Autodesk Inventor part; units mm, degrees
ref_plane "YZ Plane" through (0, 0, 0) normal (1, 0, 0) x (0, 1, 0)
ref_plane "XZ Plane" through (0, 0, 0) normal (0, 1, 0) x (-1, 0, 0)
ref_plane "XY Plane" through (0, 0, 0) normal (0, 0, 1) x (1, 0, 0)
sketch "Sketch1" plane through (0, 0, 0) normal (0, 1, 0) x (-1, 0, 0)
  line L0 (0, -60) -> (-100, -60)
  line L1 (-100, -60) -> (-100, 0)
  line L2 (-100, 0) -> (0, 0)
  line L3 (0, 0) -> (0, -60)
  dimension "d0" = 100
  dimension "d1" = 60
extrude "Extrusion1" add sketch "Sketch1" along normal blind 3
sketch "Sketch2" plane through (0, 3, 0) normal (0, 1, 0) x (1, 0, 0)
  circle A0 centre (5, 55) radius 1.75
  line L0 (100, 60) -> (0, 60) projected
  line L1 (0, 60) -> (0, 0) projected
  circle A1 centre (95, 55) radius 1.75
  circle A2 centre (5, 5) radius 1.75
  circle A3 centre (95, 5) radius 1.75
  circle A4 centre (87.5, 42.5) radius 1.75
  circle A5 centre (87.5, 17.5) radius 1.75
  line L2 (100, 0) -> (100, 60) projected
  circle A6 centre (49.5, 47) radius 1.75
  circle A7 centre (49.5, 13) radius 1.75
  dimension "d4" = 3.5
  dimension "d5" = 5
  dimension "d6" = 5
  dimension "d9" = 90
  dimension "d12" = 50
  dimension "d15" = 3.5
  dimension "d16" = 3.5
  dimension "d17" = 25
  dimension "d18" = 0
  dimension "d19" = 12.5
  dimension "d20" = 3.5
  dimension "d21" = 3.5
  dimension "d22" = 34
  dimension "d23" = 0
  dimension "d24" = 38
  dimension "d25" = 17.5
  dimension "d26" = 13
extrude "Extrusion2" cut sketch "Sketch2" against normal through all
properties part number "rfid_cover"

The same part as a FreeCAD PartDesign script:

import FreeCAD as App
import Part
import Sketcher

V = App.Vector

doc = App.newDocument("Part")
body = doc.addObject("PartDesign::Body", "Body")

# Sketch on XZ plane
sketch1 = body.newObject("Sketcher::SketchObject", "Sketch")
sketch1.AttachmentSupport = (doc.getObject("XZ_Plane"), [""])
sketch1.MapMode = "FlatFace"
sketch1.addGeometry(Part.LineSegment(V(100, -60, 0), V(0, -60, 0)), False)
sketch1.addGeometry(Part.LineSegment(V(0, -60, 0), V(0, 0, 0)), False)
sketch1.addGeometry(Part.LineSegment(V(0, 0, 0), V(100, 0, 0)), False)
sketch1.addGeometry(Part.LineSegment(V(100, 0, 0), V(100, -60, 0)), False)
sketch1.addConstraint(Sketcher.Constraint("Coincident", 0, 2, 1, 1))
sketch1.addConstraint(Sketcher.Constraint("Coincident", 1, 2, 2, 1))
sketch1.addConstraint(Sketcher.Constraint("Coincident", 2, 2, 3, 1))
sketch1.addConstraint(Sketcher.Constraint("Coincident", 3, 2, 0, 1))
sketch1.addConstraint(Sketcher.Constraint("Horizontal", 0))
sketch1.addConstraint(Sketcher.Constraint("Vertical", 1))
sketch1.addConstraint(Sketcher.Constraint("Horizontal", 2))
sketch1.addConstraint(Sketcher.Constraint("Vertical", 3))
sketch1.addConstraint(Sketcher.Constraint("Coincident", 1, 2, -1, 1))
sketch1.addConstraint(Sketcher.Constraint("DistanceX", 0, 2, 0, 1, 100.0))
sketch1.addConstraint(Sketcher.Constraint("DistanceY", 1, 1, 1, 2, 60.0))
pad1 = body.newObject("PartDesign::Pad", "Pad")
pad1.Profile = sketch1
pad1.Length = 3
pad1.Reversed = True

# Sketch on XZ plane
sketch2 = body.newObject("Sketcher::SketchObject", "Sketch001")
sketch2.AttachmentSupport = (doc.getObject("XZ_Plane"), [""])
sketch2.MapMode = "FlatFace"
sketch2.AttachmentOffset = App.Placement(V(0, 0, -3), App.Rotation())
sketch2.addGeometry(Part.Circle(V(5, -55, 0), V(0, 0, 1), 1.75), False)
sketch2.addGeometry(Part.Circle(V(95, -55, 0), V(0, 0, 1), 1.75), False)
sketch2.addGeometry(Part.Circle(V(5, -5, 0), V(0, 0, 1), 1.75), False)
sketch2.addGeometry(Part.Circle(V(95, -5, 0), V(0, 0, 1), 1.75), False)
sketch2.addGeometry(Part.Circle(V(87.5, -42.5, 0), V(0, 0, 1), 1.75), False)
sketch2.addGeometry(Part.Circle(V(87.5, -17.5, 0), V(0, 0, 1), 1.75), False)
sketch2.addGeometry(Part.Circle(V(49.5, -47, 0), V(0, 0, 1), 1.75), False)
sketch2.addGeometry(Part.Circle(V(49.5, -13, 0), V(0, 0, 1), 1.75), False)
sketch2.addConstraint(Sketcher.Constraint("Equal", 0, 1))
sketch2.addConstraint(Sketcher.Constraint("Equal", 1, 2))
sketch2.addConstraint(Sketcher.Constraint("Equal", 2, 3))
sketch2.addConstraint(Sketcher.Constraint("Equal", 3, 4))
sketch2.addConstraint(Sketcher.Constraint("Equal", 4, 5))
sketch2.addConstraint(Sketcher.Constraint("Equal", 5, 6))
sketch2.addConstraint(Sketcher.Constraint("Equal", 6, 7))
sketch2.addConstraint(Sketcher.Constraint("Horizontal", 0, 3, 1, 3))
sketch2.addConstraint(Sketcher.Constraint("Horizontal", 2, 3, 3, 3))
sketch2.addConstraint(Sketcher.Constraint("Vertical", 0, 3, 2, 3))
sketch2.addConstraint(Sketcher.Constraint("Vertical", 1, 3, 3, 3))
sketch2.addConstraint(Sketcher.Constraint("Vertical", 4, 3, 5, 3))
sketch2.addConstraint(Sketcher.Constraint("Vertical", 6, 3, 7, 3))
sketch2.addConstraint(Sketcher.Constraint("Diameter", 0, 3.5))
sketch2.addConstraint(Sketcher.Constraint("DistanceX", -1, 1, 0, 3, 5.0))
sketch2.addConstraint(Sketcher.Constraint("DistanceY", 2, 3, -1, 1, 5.0))
sketch2.addConstraint(Sketcher.Constraint("DistanceY", 7, 3, -1, 1, 13.0))
sketch2.addConstraint(Sketcher.Constraint("DistanceX", 0, 3, 1, 3, 90.0))
sketch2.addConstraint(Sketcher.Constraint("DistanceY", 0, 3, 2, 3, 50.0))
sketch2.addConstraint(Sketcher.Constraint("DistanceY", 4, 3, 5, 3, 25.0))
sketch2.addConstraint(Sketcher.Constraint("DistanceX", 6, 3, 4, 3, 38.0))
sketch2.addConstraint(Sketcher.Constraint("DistanceY", 6, 3, 7, 3, 34.0))
sketch2.addConstraint(Sketcher.Constraint("DistanceY", 5, 3, -1, 1, 17.5))
sketch2.addConstraint(Sketcher.Constraint("DistanceX", -1, 1, 4, 3, 87.5))
pocket1 = body.newObject("PartDesign::Pocket", "Pocket")
pocket1.Profile = sketch2
pocket1.Type = "ThroughAll"
pocket1.Reversed = True

doc.recompute()
